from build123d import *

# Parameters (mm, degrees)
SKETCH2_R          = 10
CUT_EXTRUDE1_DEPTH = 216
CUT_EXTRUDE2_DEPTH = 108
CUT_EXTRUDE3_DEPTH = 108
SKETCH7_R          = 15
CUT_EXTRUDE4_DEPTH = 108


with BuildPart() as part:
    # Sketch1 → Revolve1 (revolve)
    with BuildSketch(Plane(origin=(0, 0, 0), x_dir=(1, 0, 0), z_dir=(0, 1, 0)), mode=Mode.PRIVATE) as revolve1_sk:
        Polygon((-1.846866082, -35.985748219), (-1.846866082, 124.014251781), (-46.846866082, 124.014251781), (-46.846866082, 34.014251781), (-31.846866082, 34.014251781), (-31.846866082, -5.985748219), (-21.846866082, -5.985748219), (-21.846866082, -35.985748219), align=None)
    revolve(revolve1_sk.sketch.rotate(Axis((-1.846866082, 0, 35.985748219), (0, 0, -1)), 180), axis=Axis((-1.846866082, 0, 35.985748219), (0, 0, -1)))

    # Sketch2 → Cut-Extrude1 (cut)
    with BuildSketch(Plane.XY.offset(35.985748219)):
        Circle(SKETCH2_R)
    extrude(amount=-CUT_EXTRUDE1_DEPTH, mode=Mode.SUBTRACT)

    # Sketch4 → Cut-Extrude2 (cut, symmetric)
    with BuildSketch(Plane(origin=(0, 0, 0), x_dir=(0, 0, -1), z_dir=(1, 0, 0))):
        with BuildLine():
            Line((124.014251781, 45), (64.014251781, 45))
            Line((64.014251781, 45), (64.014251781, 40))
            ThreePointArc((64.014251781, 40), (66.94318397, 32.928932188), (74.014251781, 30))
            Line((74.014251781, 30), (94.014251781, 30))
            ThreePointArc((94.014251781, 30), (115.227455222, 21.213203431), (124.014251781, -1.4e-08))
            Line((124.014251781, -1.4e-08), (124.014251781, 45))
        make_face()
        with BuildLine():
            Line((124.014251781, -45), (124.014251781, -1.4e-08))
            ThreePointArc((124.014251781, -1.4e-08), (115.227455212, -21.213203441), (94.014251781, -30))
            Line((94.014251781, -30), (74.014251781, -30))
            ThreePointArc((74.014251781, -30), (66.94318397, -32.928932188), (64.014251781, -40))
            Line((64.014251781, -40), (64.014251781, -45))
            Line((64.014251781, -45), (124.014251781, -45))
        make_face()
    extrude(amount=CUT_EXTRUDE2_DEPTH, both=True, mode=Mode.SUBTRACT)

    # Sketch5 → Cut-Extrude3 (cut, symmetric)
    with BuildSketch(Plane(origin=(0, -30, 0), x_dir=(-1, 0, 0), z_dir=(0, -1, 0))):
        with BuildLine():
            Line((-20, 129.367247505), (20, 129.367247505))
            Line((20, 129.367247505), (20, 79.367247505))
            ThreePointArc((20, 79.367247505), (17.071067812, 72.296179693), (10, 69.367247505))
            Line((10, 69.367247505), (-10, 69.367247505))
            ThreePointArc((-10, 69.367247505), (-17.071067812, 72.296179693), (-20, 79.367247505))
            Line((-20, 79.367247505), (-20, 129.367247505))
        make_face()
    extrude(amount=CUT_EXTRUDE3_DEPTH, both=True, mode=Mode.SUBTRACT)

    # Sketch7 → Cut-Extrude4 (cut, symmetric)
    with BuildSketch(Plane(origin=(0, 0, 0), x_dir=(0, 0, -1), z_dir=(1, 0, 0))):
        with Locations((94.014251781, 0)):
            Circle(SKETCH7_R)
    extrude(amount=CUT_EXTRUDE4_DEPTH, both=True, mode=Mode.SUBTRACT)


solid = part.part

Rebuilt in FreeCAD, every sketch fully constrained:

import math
import FreeCAD as App
import Part
import Sketcher

V = App.Vector

doc = App.newDocument("Part")
body = doc.addObject("PartDesign::Body", "Body")

# Sketch on XZ plane
sketch1 = doc.addObject("Sketcher::SketchObject", "Sketch")
body.addObject(sketch1)
sketch1.AttachmentSupport = (doc.XZ_Plane, [""])
sketch1.MapMode = "FlatFace"
sketch1.addGeometry(Part.LineSegment(V(-2, 36, 0), V(-2, -124, 0)), False)
sketch1.addGeometry(Part.LineSegment(V(-2, -124, 0), V(-47, -124, 0)), False)
sketch1.addGeometry(Part.LineSegment(V(-47, -124, 0), V(-47, -34, 0)), False)
sketch1.addGeometry(Part.LineSegment(V(-47, -34, 0), V(-32, -34, 0)), False)
sketch1.addGeometry(Part.LineSegment(V(-32, -34, 0), V(-32, 6, 0)), False)
sketch1.addGeometry(Part.LineSegment(V(-32, 6, 0), V(-22, 6, 0)), False)
sketch1.addGeometry(Part.LineSegment(V(-22, 6, 0), V(-22, 36, 0)), False)
sketch1.addGeometry(Part.LineSegment(V(-22, 36, 0), V(-2, 36, 0)), False)
sketch1.addGeometry(Part.LineSegment(V(-2, 36, 0), V(-2, -124, 0)), True)  # axis
sketch1.addConstraint(Sketcher.Constraint("Coincident", 0, 2, 1, 1))
sketch1.addConstraint(Sketcher.Constraint("Coincident", 1, 2, 2, 1))
sketch1.addConstraint(Sketcher.Constraint("Coincident", 2, 2, 3, 1))
sketch1.addConstraint(Sketcher.Constraint("Coincident", 3, 2, 4, 1))
sketch1.addConstraint(Sketcher.Constraint("Coincident", 4, 2, 5, 1))
sketch1.addConstraint(Sketcher.Constraint("Coincident", 5, 2, 6, 1))
sketch1.addConstraint(Sketcher.Constraint("Coincident", 6, 2, 7, 1))
sketch1.addConstraint(Sketcher.Constraint("Coincident", 7, 2, 0, 1))
sketch1.addConstraint(Sketcher.Constraint("Vertical", 0))
sketch1.addConstraint(Sketcher.Constraint("Horizontal", 1))
sketch1.addConstraint(Sketcher.Constraint("Vertical", 2))
sketch1.addConstraint(Sketcher.Constraint("Horizontal", 3))
sketch1.addConstraint(Sketcher.Constraint("Vertical", 4))
sketch1.addConstraint(Sketcher.Constraint("Horizontal", 5))
sketch1.addConstraint(Sketcher.Constraint("Vertical", 6))
sketch1.addConstraint(Sketcher.Constraint("Horizontal", 7))
sketch1.addConstraint(Sketcher.Constraint("Vertical", 8))
sketch1.addConstraint(Sketcher.Constraint("Coincident", 8, 1, 7, 2))
sketch1.addConstraint(Sketcher.Constraint("Horizontal", 1, 2, 8, 2))
sketch1.addConstraint(Sketcher.Constraint("DistanceX", 1, 2, 1, 1, 45.0))
sketch1.addConstraint(Sketcher.Constraint("DistanceX", 3, 1, 3, 2, 15.0))
sketch1.addConstraint(Sketcher.Constraint("DistanceX", 5, 1, 5, 2, 10.0))
sketch1.addConstraint(Sketcher.Constraint("DistanceY", 0, 2, 0, 1, 160.0))
sketch1.addConstraint(Sketcher.Constraint("DistanceY", 2, 1, 2, 2, 90.0))
sketch1.addConstraint(Sketcher.Constraint("DistanceY", 4, 1, 4, 2, 40.0))
sketch1.addConstraint(Sketcher.Constraint("DistanceY", 0, 2, -1, 1, 124.014252))
sketch1.addConstraint(Sketcher.Constraint("DistanceX", 0, 2, -1, 1, 1.846866))
revolution = doc.addObject("PartDesign::Revolution", "Revolution")
body.addObject(revolution)
revolution.Profile = sketch1
revolution.ReferenceAxis = (sketch1, ["Axis0"])
revolution.Angle = 360

# Sketch on XY plane
sketch2 = doc.addObject("Sketcher::SketchObject", "Sketch001")
body.addObject(sketch2)
sketch2.AttachmentSupport = (doc.XY_Plane, [""])
sketch2.MapMode = "FlatFace"
sketch2.AttachmentOffset = App.Placement(V(0, 0, 35.985748), App.Rotation())
sketch2.addGeometry(Part.Circle(V(0, 0, 0), V(0, 0, 1), 10), False)
sketch2.addConstraint(Sketcher.Constraint("Coincident", 0, 3, -1, 1))
sketch2.addConstraint(Sketcher.Constraint("Diameter", 0, 20.0))
pocket1 = doc.addObject("PartDesign::Pocket", "Pocket")
body.addObject(pocket1)
pocket1.Profile = sketch2
pocket1.Length = 216

# Sketch on YZ plane
sketch3 = doc.addObject("Sketcher::SketchObject", "Sketch002")
body.addObject(sketch3)
sketch3.AttachmentSupport = (doc.YZ_Plane, [""])
sketch3.MapMode = "FlatFace"
sketch3.addGeometry(Part.LineSegment(V(45, -124, 0), V(45, -64, 0)), False)
sketch3.addGeometry(Part.LineSegment(V(45, -64, 0), V(40, -64, 0)), False)
sketch3.addGeometry(Part.ArcOfCircle(Part.Circle(V(40, -74, 0), V(0, 0, 1), 10), math.radians(90), math.radians(180)), False)
sketch3.addGeometry(Part.LineSegment(V(30, -74, 0), V(30, -94, 0)), False)
sketch3.addGeometry(Part.ArcOfCircle(Part.Circle(V(0, -94, 0), V(0, 0, 1), 30), math.radians(-90), math.radians(0)), False)
sketch3.addGeometry(Part.LineSegment(V(0, -124, 0), V(45, -124, 0)), False)
sketch3.addGeometry(Part.LineSegment(V(-45, -124, 0), V(0, -124, 0)), False)
sketch3.addGeometry(Part.ArcOfCircle(Part.Circle(V(0, -94, 0), V(0, 0, 1), 30), math.radians(180), math.radians(270)), False)
sketch3.addGeometry(Part.LineSegment(V(-30, -94, 0), V(-30, -74, 0)), False)
sketch3.addGeometry(Part.ArcOfCircle(Part.Circle(V(-40, -74, 0), V(0, 0, 1), 10), math.radians(0), math.radians(90)), False)
sketch3.addGeometry(Part.LineSegment(V(-40, -64, 0), V(-45, -64, 0)), False)
sketch3.addGeometry(Part.LineSegment(V(-45, -64, 0), V(-45, -124, 0)), False)
sketch3.addConstraint(Sketcher.Constraint("Coincident", 0, 2, 1, 1))
sketch3.addConstraint(Sketcher.Constraint("Tangent", 1, 2, 2, 1))
sketch3.addConstraint(Sketcher.Constraint("Tangent", 2, 2, 3, 1))
sketch3.addConstraint(Sketcher.Constraint("Tangent", 3, 2, 4, 2))
sketch3.addConstraint(Sketcher.Constraint("Tangent", 4, 1, 5, 1))
sketch3.addConstraint(Sketcher.Constraint("Coincident", 5, 2, 0, 1))
sketch3.addConstraint(Sketcher.Constraint("Tangent", 6, 2, 7, 2))
sketch3.addConstraint(Sketcher.Constraint("Tangent", 7, 1, 8, 1))
sketch3.addConstraint(Sketcher.Constraint("Tangent", 8, 2, 9, 1))
sketch3.addConstraint(Sketcher.Constraint("Tangent", 9, 2, 10, 1))
sketch3.addConstraint(Sketcher.Constraint("Coincident", 10, 2, 11, 1))
sketch3.addConstraint(Sketcher.Constraint("Coincident", 11, 2, 6, 1))
sketch3.addConstraint(Sketcher.Constraint("Vertical", 0))
sketch3.addConstraint(Sketcher.Constraint("Horizontal", 1))
sketch3.addConstraint(Sketcher.Constraint("Vertical", 3))
sketch3.addConstraint(Sketcher.Constraint("Horizontal", 5))
sketch3.addConstraint(Sketcher.Constraint("Horizontal", 6))
sketch3.addConstraint(Sketcher.Constraint("Vertical", 8))
sketch3.addConstraint(Sketcher.Constraint("Horizontal", 10))
sketch3.addConstraint(Sketcher.Constraint("Vertical", 11))
sketch3.addConstraint(Sketcher.Constraint("Coincident", 7, 3, 4, 3))
sketch3.addConstraint(Sketcher.Constraint("Equal", 4, 7))
sketch3.addConstraint(Sketcher.Constraint("Equal", 2, 9))
sketch3.addConstraint(Sketcher.Constraint("Symmetric", 2, 3, 9, 3, -2))
sketch3.addConstraint(Sketcher.Constraint("Equal", 5, 6))
sketch3.addConstraint(Sketcher.Constraint("Radius", 2, 10.0))
sketch3.addConstraint(Sketcher.Constraint("Radius", 4, 30.0))
sketch3.addConstraint(Sketcher.Constraint("DistanceX", 1, 2, 1, 1, 5.0))
sketch3.addConstraint(Sketcher.Constraint("DistanceY", 0, 1, 0, 2, 60.0))
sketch3.addConstraint(Sketcher.Constraint("DistanceY", 2, 3, -1, 1, 74.014252))
pocket2 = doc.addObject("PartDesign::Pocket", "Pocket001")
body.addObject(pocket2)
pocket2.Profile = sketch3
pocket2.Length = 216
pocket2.Midplane = True

# Sketch on XZ plane
sketch4 = doc.addObject("Sketcher::SketchObject", "Sketch003")
body.addObject(sketch4)
sketch4.AttachmentSupport = (doc.XZ_Plane, [""])
sketch4.MapMode = "FlatFace"
sketch4.AttachmentOffset = App.Placement(V(0, 0, 30), App.Rotation())
sketch4.addGeometry(Part.LineSegment(V(-20, -129, 0), V(20, -129, 0)), False)
sketch4.addGeometry(Part.LineSegment(V(20, -129, 0), V(20, -79, 0)), False)
sketch4.addGeometry(Part.ArcOfCircle(Part.Circle(V(10, -79, 0), V(0, 0, 1), 10), math.radians(0), math.radians(90)), False)
sketch4.addGeometry(Part.LineSegment(V(10, -69, 0), V(-10, -69, 0)), False)
sketch4.addGeometry(Part.ArcOfCircle(Part.Circle(V(-10, -79, 0), V(0, 0, 1), 10), math.radians(90), math.radians(180)), False)
sketch4.addGeometry(Part.LineSegment(V(-20, -79, 0), V(-20, -129, 0)), False)
sketch4.addConstraint(Sketcher.Constraint("Coincident", 0, 2, 1, 1))
sketch4.addConstraint(Sketcher.Constraint("Tangent", 1, 2, 2, 1))
sketch4.addConstraint(Sketcher.Constraint("Tangent", 2, 2, 3, 1))
sketch4.addConstraint(Sketcher.Constraint("Tangent", 3, 2, 4, 1))
sketch4.addConstraint(Sketcher.Constraint("Tangent", 4, 2, 5, 1))
sketch4.addConstraint(Sketcher.Constraint("Coincident", 5, 2, 0, 1))
sketch4.addConstraint(Sketcher.Constraint("Horizontal", 0))
sketch4.addConstraint(Sketcher.Constraint("Vertical", 1))
sketch4.addConstraint(Sketcher.Constraint("Horizontal", 3))
sketch4.addConstraint(Sketcher.Constraint("Vertical", 5))
sketch4.addConstraint(Sketcher.Constraint("Equal", 2, 4))
sketch4.addConstraint(Sketcher.Constraint("Radius", 2, 10.0))
sketch4.addConstraint(Sketcher.Constraint("DistanceX", 0, 1, 0, 2, 40.0))
sketch4.addConstraint(Sketcher.Constraint("DistanceY", 1, 1, 1, 2, 50.0))
sketch4.addConstraint(Sketcher.Constraint("DistanceX", -1, 1, 2, 3, 10.0))
sketch4.addConstraint(Sketcher.Constraint("DistanceY", 2, 3, -1, 1, 79.367248))
pocket3 = doc.addObject("PartDesign::Pocket", "Pocket002")
body.addObject(pocket3)
pocket3.Profile = sketch4
pocket3.Length = 216
pocket3.Midplane = True

# Sketch on YZ plane
sketch5 = doc.addObject("Sketcher::SketchObject", "Sketch004")
body.addObject(sketch5)
sketch5.AttachmentSupport = (doc.YZ_Plane, [""])
sketch5.MapMode = "FlatFace"
sketch5.addGeometry(Part.Circle(V(0, -94, 0), V(0, 0, 1), 15), False)
sketch5.addConstraint(Sketcher.Constraint("PointOnObject", 0, 3, -2))
sketch5.addConstraint(Sketcher.Constraint("Diameter", 0, 30.0))
sketch5.addConstraint(Sketcher.Constraint("DistanceY", 0, 3, -1, 1, 94.014252))
pocket4 = doc.addObject("PartDesign::Pocket", "Pocket003")
body.addObject(pocket4)
pocket4.Profile = sketch5
pocket4.Length = 216
pocket4.Midplane = True

doc.recompute()
